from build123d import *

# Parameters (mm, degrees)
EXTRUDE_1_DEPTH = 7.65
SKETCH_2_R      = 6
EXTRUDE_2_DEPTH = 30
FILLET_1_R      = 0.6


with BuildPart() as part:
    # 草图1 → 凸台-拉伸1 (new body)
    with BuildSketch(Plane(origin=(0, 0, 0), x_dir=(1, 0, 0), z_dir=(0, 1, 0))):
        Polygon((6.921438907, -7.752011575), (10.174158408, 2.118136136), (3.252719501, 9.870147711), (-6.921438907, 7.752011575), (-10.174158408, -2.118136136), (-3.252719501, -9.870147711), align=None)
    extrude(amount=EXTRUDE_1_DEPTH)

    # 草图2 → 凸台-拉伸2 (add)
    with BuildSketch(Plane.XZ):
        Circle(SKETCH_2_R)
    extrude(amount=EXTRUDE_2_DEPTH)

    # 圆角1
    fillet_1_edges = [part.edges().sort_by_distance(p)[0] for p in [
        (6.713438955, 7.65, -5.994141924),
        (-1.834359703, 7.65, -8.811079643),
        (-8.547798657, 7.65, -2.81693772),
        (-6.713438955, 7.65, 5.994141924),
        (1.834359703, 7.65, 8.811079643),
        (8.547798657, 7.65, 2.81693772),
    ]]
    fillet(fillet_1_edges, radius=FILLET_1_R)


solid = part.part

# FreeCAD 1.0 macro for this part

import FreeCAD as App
import Part
import Sketcher
from FreeCAD import Vector
Q = App.Units.Quantity


def edges_at(feature, points):
    """Names of the edges that pass closest to the given points."""
    edges = feature.Shape.Edges
    near = lambda p: min(range(len(edges)), key=lambda i: edges[i].distToShape(Part.Vertex(*p))[0])
    return sorted({f"Edge{near(p) + 1}" for p in points})

doc = App.newDocument("Part")
body = doc.addObject("PartDesign::Body", "Body")

# Sketch on XZ plane
sketch1 = body.newObject("Sketcher::SketchObject", "Sketch")
sketch1.AttachmentSupport = (doc.getObject("XZ_Plane"), [""])
sketch1.MapMode = "FlatFace"
sketch1.addGeometry([
    Part.LineSegment(Vector(6.921439, 7.752012, 0), Vector(10.174158, -2.118136, 0)),  # 0
    Part.LineSegment(Vector(10.174158, -2.118136, 0), Vector(3.25272, -9.870148, 0)),  # 1
    Part.LineSegment(Vector(3.25272, -9.870148, 0), Vector(-6.921439, -7.752012, 0)),  # 2
    Part.LineSegment(Vector(-6.921439, -7.752012, 0), Vector(-10.174158, 2.118136, 0)),  # 3
    Part.LineSegment(Vector(-10.174158, 2.118136, 0), Vector(-3.25272, 9.870148, 0)),  # 4
    Part.LineSegment(Vector(-3.25272, 9.870148, 0), Vector(6.921439, 7.752012, 0)),  # 5
], False)
sketch1.addConstraint([
    Sketcher.Constraint("Coincident", 0, 2, 1, 1),
    Sketcher.Constraint("Coincident", 1, 2, 2, 1),
    Sketcher.Constraint("Coincident", 2, 2, 3, 1),
    Sketcher.Constraint("Coincident", 3, 2, 4, 1),
    Sketcher.Constraint("Coincident", 4, 2, 5, 1),
    Sketcher.Constraint("Coincident", 5, 2, 0, 1),
    Sketcher.Constraint("Symmetric", 0, 2, 3, 2, -1, 1),
    Sketcher.Constraint("Symmetric", 1, 2, 4, 2, -1, 1),
    Sketcher.Constraint("Symmetric", 2, 2, 5, 2, -1, 1),
    Sketcher.Constraint("Equal", 0, 1),
    Sketcher.Constraint("Equal", 1, 2),
    Sketcher.Constraint("DistanceX", -1, 1, 0, 2, Q("10.174158 mm")),
    Sketcher.Constraint("DistanceX", -1, 1, 1, 2, Q("3.25272 mm")),
    Sketcher.Constraint("DistanceX", 2, 2, -1, 1, Q("6.921439 mm")),
    Sketcher.Constraint("DistanceY", 2, 2, -1, 1, Q("7.752012 mm")),
])
pad1 = body.newObject("PartDesign::Pad", "Pad")
pad1.Profile = sketch1
pad1.Length = 7.65
pad1.Reversed = True

# Sketch on XZ plane
sketch2 = body.newObject("Sketcher::SketchObject", "Sketch001")
sketch2.AttachmentSupport = (doc.getObject("XZ_Plane"), [""])
sketch2.MapMode = "FlatFace"
sketch2.addGeometry(Part.Circle(Vector(0, 0, 0), Vector(0, 0, 1), 6), False)
sketch2.addConstraint([
    Sketcher.Constraint("Coincident", 0, 3, -1, 1),
    Sketcher.Constraint("Diameter", 0, Q("12 mm")),
])
pad2 = body.newObject("PartDesign::Pad", "Pad001")
pad2.Profile = sketch2
pad2.Length = 30
doc.recompute()

fillet = body.newObject("PartDesign::Fillet", "Fillet")
fillet.Base = (pad2, edges_at(pad2, [
    (6.713, 7.65, -5.994),
    (-1.834, 7.65, -8.811),
    (-8.548, 7.65, -2.817),
    (-6.713, 7.65, 5.994),
    (1.834, 7.65, 8.811),
    (8.548, 7.65, 2.817),
]))
fillet.Radius = 0.6

doc.recompute()
